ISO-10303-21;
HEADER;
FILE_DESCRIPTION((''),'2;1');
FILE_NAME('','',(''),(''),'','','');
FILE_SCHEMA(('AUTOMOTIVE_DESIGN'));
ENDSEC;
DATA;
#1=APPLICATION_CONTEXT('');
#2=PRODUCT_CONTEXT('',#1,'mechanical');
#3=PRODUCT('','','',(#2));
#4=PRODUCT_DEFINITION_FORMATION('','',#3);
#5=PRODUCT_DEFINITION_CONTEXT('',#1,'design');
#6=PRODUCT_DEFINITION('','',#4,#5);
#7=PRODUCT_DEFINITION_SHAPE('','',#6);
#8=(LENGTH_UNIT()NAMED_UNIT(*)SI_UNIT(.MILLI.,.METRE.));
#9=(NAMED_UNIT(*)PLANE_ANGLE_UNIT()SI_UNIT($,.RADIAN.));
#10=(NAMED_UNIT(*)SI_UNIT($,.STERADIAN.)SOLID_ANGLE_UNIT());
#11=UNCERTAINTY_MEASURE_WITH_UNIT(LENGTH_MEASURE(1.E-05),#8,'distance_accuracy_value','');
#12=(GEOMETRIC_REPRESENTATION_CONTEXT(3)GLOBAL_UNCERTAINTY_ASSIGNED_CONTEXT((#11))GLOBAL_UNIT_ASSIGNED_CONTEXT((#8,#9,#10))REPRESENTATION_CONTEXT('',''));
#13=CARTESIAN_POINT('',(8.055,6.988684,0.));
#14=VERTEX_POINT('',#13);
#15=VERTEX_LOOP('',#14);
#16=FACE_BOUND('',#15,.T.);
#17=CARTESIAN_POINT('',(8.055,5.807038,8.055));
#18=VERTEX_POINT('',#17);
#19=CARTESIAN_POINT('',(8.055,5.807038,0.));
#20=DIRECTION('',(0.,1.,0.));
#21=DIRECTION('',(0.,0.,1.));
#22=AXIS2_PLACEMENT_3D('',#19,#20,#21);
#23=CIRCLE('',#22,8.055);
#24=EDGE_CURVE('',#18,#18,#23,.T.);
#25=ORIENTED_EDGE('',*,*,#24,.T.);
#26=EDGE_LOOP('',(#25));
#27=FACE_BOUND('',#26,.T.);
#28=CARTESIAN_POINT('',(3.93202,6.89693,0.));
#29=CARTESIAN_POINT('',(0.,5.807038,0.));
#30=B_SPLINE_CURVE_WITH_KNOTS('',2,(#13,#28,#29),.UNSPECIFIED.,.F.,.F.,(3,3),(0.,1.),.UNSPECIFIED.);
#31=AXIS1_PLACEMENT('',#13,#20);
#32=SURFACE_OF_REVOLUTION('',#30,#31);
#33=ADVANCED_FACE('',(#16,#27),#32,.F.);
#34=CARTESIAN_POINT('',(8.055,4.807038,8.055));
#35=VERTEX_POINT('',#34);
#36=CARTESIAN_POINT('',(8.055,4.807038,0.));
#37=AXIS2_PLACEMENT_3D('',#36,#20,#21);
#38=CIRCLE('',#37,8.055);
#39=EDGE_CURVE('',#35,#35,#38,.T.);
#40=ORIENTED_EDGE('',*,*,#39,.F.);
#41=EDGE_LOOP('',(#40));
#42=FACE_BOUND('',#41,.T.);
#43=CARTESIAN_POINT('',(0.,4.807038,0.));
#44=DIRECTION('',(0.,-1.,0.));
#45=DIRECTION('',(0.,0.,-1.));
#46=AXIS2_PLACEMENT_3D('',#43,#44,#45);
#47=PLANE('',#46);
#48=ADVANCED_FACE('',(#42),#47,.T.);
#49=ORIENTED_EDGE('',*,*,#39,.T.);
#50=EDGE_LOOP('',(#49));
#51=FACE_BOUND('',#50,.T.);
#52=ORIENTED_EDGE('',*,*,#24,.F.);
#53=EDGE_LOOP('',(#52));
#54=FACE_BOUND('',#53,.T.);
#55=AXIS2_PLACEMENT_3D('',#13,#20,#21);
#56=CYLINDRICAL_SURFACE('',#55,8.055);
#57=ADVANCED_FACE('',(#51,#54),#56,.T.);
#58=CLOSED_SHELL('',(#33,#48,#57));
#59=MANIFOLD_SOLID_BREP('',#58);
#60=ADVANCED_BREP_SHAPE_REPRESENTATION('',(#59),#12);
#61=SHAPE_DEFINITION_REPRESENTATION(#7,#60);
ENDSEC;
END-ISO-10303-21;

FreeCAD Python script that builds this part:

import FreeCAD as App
import Part
import Sketcher

V = App.Vector
Q = App.Units.Quantity

doc = App.newDocument("Part")
body = doc.addObject("PartDesign::Body", "Body")

sketch1 = doc.addObject("Sketcher::SketchObject", "Sketch")
body.addObject(sketch1)
sketch1.AttachmentSupport = (doc.XY_Plane, [""])
sketch1.MapMode = "FlatFace"
sketch1.addGeometry([
    Part.LineSegment(V(0, 5.807038, 0), V(0, 4.807038, 0)),
    Part.LineSegment(V(0, 4.807038, 0), V(8.055, 4.807038, 0)),
    Part.LineSegment(V(8.055, 4.807038, 0), V(8.055, 6.988684, 0)),
    Part.BSplineCurve([V(0, 5.807038, 0), V(3.93202, 6.89693, 0), V(8.055, 6.988684, 0)], [3, 3], [0, 1], False, 2, [1, 1, 1], False),
], False)
sketch1.addGeometry(Part.LineSegment(V(8.055, 6.988684, 0), V(8.055, 4.807038, 0)), True)
sketch1.addConstraint([
    Sketcher.Constraint("Block", 3),
    Sketcher.Constraint("Coincident", 0, 2, 1, 1),
    Sketcher.Constraint("Coincident", 1, 2, 2, 1),
    Sketcher.Constraint("Coincident", 2, 2, 3, 2),
    Sketcher.Constraint("Coincident", 3, 1, 0, 1),
    Sketcher.Constraint("Vertical", 0),
    Sketcher.Constraint("Horizontal", 1),
    Sketcher.Constraint("Vertical", 2),
    Sketcher.Constraint("Vertical", 4),
    Sketcher.Constraint("Coincident", 4, 1, 2, 2),
    Sketcher.Constraint("Horizontal", 0, 2, 4, 2),
    Sketcher.Constraint("DistanceY", 0, 2, 0, 1, Q("1 mm")),
])
revolution = doc.addObject("PartDesign::Revolution", "Revolution")
body.addObject(revolution)
revolution.Profile = sketch1
revolution.ReferenceAxis = (sketch1, ["Axis0"])
revolution.Angle = 360

doc.recompute()
